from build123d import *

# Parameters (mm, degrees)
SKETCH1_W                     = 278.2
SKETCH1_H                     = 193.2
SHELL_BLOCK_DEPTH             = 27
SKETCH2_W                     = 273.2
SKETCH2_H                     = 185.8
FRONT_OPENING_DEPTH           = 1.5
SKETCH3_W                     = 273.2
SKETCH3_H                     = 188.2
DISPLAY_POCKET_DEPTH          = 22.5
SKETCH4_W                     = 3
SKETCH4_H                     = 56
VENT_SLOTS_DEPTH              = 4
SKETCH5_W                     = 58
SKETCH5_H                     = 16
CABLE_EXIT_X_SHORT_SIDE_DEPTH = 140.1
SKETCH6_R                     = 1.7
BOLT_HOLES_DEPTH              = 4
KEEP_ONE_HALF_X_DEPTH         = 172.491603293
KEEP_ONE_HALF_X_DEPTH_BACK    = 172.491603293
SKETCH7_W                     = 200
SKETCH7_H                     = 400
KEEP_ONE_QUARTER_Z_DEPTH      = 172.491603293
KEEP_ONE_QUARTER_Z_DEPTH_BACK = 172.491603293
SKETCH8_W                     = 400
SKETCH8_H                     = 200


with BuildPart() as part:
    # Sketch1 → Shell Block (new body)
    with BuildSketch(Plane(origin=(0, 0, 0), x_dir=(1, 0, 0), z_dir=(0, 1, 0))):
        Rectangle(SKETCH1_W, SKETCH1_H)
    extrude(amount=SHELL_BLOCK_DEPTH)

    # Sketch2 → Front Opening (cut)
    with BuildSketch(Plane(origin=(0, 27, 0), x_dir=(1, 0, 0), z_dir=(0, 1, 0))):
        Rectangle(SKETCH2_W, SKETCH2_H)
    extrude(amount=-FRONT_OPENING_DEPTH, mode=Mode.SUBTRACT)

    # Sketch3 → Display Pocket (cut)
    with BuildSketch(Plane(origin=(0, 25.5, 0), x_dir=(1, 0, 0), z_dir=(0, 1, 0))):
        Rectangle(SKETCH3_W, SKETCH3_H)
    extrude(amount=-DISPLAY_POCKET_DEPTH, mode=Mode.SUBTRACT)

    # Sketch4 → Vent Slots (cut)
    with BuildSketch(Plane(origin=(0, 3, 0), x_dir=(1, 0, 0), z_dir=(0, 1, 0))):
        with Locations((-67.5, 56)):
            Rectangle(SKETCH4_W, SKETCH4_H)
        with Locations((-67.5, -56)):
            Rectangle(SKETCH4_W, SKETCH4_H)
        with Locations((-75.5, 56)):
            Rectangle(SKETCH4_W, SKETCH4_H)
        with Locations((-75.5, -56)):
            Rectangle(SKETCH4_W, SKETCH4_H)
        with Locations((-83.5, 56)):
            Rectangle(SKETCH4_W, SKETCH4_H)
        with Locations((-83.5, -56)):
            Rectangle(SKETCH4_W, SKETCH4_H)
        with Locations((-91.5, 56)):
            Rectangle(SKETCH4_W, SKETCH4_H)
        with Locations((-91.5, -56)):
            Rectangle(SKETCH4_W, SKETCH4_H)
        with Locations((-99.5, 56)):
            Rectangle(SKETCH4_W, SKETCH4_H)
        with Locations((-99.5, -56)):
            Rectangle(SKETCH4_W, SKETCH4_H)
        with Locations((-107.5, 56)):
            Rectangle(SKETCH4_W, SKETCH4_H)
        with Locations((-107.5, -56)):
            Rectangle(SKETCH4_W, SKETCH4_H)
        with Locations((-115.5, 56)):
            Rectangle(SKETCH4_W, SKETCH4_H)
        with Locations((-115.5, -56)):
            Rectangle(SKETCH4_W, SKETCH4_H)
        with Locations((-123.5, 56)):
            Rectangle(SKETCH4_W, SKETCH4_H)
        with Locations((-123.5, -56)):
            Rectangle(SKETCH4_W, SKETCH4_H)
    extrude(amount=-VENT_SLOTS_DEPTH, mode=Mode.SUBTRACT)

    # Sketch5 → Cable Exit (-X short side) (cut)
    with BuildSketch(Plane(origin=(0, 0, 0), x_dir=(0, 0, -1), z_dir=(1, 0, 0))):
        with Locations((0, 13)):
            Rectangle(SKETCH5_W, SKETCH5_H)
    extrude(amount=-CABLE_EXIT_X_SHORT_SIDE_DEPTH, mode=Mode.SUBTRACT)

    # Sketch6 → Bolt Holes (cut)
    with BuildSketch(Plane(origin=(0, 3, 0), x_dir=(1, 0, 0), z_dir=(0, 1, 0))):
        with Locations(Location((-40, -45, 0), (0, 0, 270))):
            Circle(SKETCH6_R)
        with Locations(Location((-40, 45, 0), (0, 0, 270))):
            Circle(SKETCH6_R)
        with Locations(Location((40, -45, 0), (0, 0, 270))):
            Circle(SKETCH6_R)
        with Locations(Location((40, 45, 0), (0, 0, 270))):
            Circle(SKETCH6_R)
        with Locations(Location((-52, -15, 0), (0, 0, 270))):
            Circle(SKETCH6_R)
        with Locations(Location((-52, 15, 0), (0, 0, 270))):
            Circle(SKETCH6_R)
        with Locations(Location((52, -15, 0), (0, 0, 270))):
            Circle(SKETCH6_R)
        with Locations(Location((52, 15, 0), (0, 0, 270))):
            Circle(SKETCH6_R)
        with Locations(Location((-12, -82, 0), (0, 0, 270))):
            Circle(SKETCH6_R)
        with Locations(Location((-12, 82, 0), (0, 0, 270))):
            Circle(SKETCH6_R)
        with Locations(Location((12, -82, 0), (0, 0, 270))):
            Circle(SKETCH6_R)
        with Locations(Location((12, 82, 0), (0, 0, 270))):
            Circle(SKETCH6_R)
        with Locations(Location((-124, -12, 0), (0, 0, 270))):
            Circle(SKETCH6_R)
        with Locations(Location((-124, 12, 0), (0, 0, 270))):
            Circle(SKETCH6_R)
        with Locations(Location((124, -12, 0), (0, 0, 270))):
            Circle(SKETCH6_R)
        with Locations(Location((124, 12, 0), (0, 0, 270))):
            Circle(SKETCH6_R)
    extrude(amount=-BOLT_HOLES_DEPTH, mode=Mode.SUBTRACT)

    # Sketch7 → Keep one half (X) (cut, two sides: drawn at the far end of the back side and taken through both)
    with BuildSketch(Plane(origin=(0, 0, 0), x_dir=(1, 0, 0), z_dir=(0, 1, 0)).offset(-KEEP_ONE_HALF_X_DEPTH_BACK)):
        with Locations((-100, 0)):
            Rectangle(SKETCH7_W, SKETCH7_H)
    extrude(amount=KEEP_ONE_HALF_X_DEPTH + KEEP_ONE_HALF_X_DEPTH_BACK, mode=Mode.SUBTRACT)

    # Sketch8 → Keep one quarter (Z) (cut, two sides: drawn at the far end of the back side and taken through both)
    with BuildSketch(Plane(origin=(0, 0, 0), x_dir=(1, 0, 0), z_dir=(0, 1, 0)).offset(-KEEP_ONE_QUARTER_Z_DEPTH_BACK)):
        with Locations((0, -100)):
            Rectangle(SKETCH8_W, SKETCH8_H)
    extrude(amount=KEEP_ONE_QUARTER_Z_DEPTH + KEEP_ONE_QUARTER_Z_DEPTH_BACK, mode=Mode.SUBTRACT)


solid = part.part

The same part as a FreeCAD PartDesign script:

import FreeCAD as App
import Part
import Sketcher

V = App.Vector
Q = App.Units.Quantity

doc = App.newDocument("Part")
body = doc.addObject("PartDesign::Body", "Body")

# Sketch on XZ plane
sketch1 = body.newObject("Sketcher::SketchObject", "Sketch")
sketch1.AttachmentSupport = (doc.getObject("XZ_Plane"), [""])
sketch1.MapMode = "FlatFace"
sketch1.addGeometry([
    Part.LineSegment(V(-139, -97, 0), V(-139, 97, 0)),
    Part.LineSegment(V(-139, 97, 0), V(139, 97, 0)),
    Part.LineSegment(V(139, 97, 0), V(139, -97, 0)),
    Part.LineSegment(V(139, -97, 0), V(-139, -97, 0)),
], False)
sketch1.addConstraint([
    Sketcher.Constraint("Coincident", 0, 2, 1, 1),
    Sketcher.Constraint("Coincident", 1, 2, 2, 1),
    Sketcher.Constraint("Coincident", 2, 2, 3, 1),
    Sketcher.Constraint("Coincident", 3, 2, 0, 1),
    Sketcher.Constraint("Vertical", 0),
    Sketcher.Constraint("Horizontal", 1),
    Sketcher.Constraint("Vertical", 2),
    Sketcher.Constraint("Horizontal", 3),
    Sketcher.Constraint("Symmetric", 0, 2, 2, 2, -1, 1),
    Sketcher.Constraint("DistanceX", 1, 1, 1, 2, Q("278.2 mm")),
    Sketcher.Constraint("DistanceY", 0, 1, 0, 2, Q("193.2 mm")),
])
pad1 = body.newObject("PartDesign::Pad", "Pad")
pad1.Profile = sketch1
pad1.Length = 27
pad1.Reversed = True

# Sketch on XZ plane
sketch2 = body.newObject("Sketcher::SketchObject", "Sketch001")
sketch2.AttachmentSupport = (doc.getObject("XZ_Plane"), [""])
sketch2.MapMode = "FlatFace"
sketch2.AttachmentOffset = App.Placement(V(0, 0, -27), App.Rotation())
sketch2.addGeometry([
    Part.LineSegment(V(-137, -93, 0), V(-137, 93, 0)),
    Part.LineSegment(V(-137, 93, 0), V(137, 93, 0)),
    Part.LineSegment(V(137, 93, 0), V(137, -93, 0)),
    Part.LineSegment(V(137, -93, 0), V(-137, -93, 0)),
], False)
sketch2.addConstraint([
    Sketcher.Constraint("Coincident", 0, 2, 1, 1),
    Sketcher.Constraint("Coincident", 1, 2, 2, 1),
    Sketcher.Constraint("Coincident", 2, 2, 3, 1),
    Sketcher.Constraint("Coincident", 3, 2, 0, 1),
    Sketcher.Constraint("Vertical", 0),
    Sketcher.Constraint("Horizontal", 1),
    Sketcher.Constraint("Vertical", 2),
    Sketcher.Constraint("Horizontal", 3),
    Sketcher.Constraint("Symmetric", 0, 2, 2, 2, -1, 1),
    Sketcher.Constraint("DistanceX", 1, 1, 1, 2, Q("273.2 mm")),
    Sketcher.Constraint("DistanceY", 0, 1, 0, 2, Q("185.8 mm")),
])
pocket1 = body.newObject("PartDesign::Pocket", "Pocket")
pocket1.Profile = sketch2
pocket1.Length = 1.5
pocket1.Reversed = True

# Sketch on XZ plane
sketch3 = body.newObject("Sketcher::SketchObject", "Sketch002")
sketch3.AttachmentSupport = (doc.getObject("XZ_Plane"), [""])
sketch3.MapMode = "FlatFace"
sketch3.AttachmentOffset = App.Placement(V(0, 0, -25.5), App.Rotation())
sketch3.addGeometry([
    Part.LineSegment(V(-137, -94, 0), V(-137, 94, 0)),
    Part.LineSegment(V(-137, 94, 0), V(137, 94, 0)),
    Part.LineSegment(V(137, 94, 0), V(137, -94, 0)),
    Part.LineSegment(V(137, -94, 0), V(-137, -94, 0)),
], False)
sketch3.addConstraint([
    Sketcher.Constraint("Coincident", 0, 2, 1, 1),
    Sketcher.Constraint("Coincident", 1, 2, 2, 1),
    Sketcher.Constraint("Coincident", 2, 2, 3, 1),
    Sketcher.Constraint("Coincident", 3, 2, 0, 1),
    Sketcher.Constraint("Vertical", 0),
    Sketcher.Constraint("Horizontal", 1),
    Sketcher.Constraint("Vertical", 2),
    Sketcher.Constraint("Horizontal", 3),
    Sketcher.Constraint("Symmetric", 0, 2, 2, 2, -1, 1),
    Sketcher.Constraint("DistanceX", 1, 1, 1, 2, Q("273.2 mm")),
    Sketcher.Constraint("DistanceY", 0, 1, 0, 2, Q("188.2 mm")),
])
pocket2 = body.newObject("PartDesign::Pocket", "Pocket001")
pocket2.Profile = sketch3
pocket2.Length = 22.5
pocket2.Reversed = True

# Sketch on XZ plane
sketch4 = body.newObject("Sketcher::SketchObject", "Sketch003")
sketch4.AttachmentSupport = (doc.getObject("XZ_Plane"), [""])
sketch4.MapMode = "FlatFace"
sketch4.AttachmentOffset = App.Placement(V(0, 0, -3), App.Rotation())
sketch4.addGeometry([
    Part.LineSegment(V(-69, -84, 0), V(-69, -28, 0)),  # 0
    Part.LineSegment(V(-69, -28, 0), V(-66, -28, 0)),  # 1
    Part.LineSegment(V(-66, -28, 0), V(-66, -84, 0)),  # 2
    Part.LineSegment(V(-66, -84, 0), V(-69, -84, 0)),  # 3
    Part.LineSegment(V(-69, 28, 0), V(-69, 84, 0)),  # 4
    Part.LineSegment(V(-69, 84, 0), V(-66, 84, 0)),  # 5
    Part.LineSegment(V(-66, 84, 0), V(-66, 28, 0)),  # 6
    Part.LineSegment(V(-66, 28, 0), V(-69, 28, 0)),  # 7
    Part.LineSegment(V(-77, -84, 0), V(-77, -28, 0)),  # 8
    Part.LineSegment(V(-77, -28, 0), V(-74, -28, 0)),  # 9
    Part.LineSegment(V(-74, -28, 0), V(-74, -84, 0)),  # 10
    Part.LineSegment(V(-74, -84, 0), V(-77, -84, 0)),  # 11
    Part.LineSegment(V(-77, 28, 0), V(-77, 84, 0)),  # 12
    Part.LineSegment(V(-77, 84, 0), V(-74, 84, 0)),  # 13
    Part.LineSegment(V(-74, 84, 0), V(-74, 28, 0)),  # 14
    Part.LineSegment(V(-74, 28, 0), V(-77, 28, 0)),  # 15
    Part.LineSegment(V(-85, -84, 0), V(-85, -28, 0)),  # 16
    Part.LineSegment(V(-85, -28, 0), V(-82, -28, 0)),  # 17
    Part.LineSegment(V(-82, -28, 0), V(-82, -84, 0)),  # 18
    Part.LineSegment(V(-82, -84, 0), V(-85, -84, 0)),  # 19
    Part.LineSegment(V(-85, 28, 0), V(-85, 84, 0)),  # 20
    Part.LineSegment(V(-85, 84, 0), V(-82, 84, 0)),  # 21
    Part.LineSegment(V(-82, 84, 0), V(-82, 28, 0)),  # 22
    Part.LineSegment(V(-82, 28, 0), V(-85, 28, 0)),  # 23
    Part.LineSegment(V(-93, -84, 0), V(-93, -28, 0)),  # 24
    Part.LineSegment(V(-93, -28, 0), V(-90, -28, 0)),  # 25
    Part.LineSegment(V(-90, -28, 0), V(-90, -84, 0)),  # 26
    Part.LineSegment(V(-90, -84, 0), V(-93, -84, 0)),  # 27
    Part.LineSegment(V(-93, 28, 0), V(-93, 84, 0)),  # 28
    Part.LineSegment(V(-93, 84, 0), V(-90, 84, 0)),  # 29
    Part.LineSegment(V(-90, 84, 0), V(-90, 28, 0)),  # 30
    Part.LineSegment(V(-90, 28, 0), V(-93, 28, 0)),  # 31
    Part.LineSegment(V(-101, -84, 0), V(-101, -28, 0)),  # 32
    Part.LineSegment(V(-101, -28, 0), V(-98, -28, 0)),  # 33
    Part.LineSegment(V(-98, -28, 0), V(-98, -84, 0)),  # 34
    Part.LineSegment(V(-98, -84, 0), V(-101, -84, 0)),  # 35
    Part.LineSegment(V(-101, 28, 0), V(-101, 84, 0)),  # 36
    Part.LineSegment(V(-101, 84, 0), V(-98, 84, 0)),  # 37
    Part.LineSegment(V(-98, 84, 0), V(-98, 28, 0)),  # 38
    Part.LineSegment(V(-98, 28, 0), V(-101, 28, 0)),  # 39
    Part.LineSegment(V(-109, -84, 0), V(-109, -28, 0)),  # 40
    Part.LineSegment(V(-109, -28, 0), V(-106, -28, 0)),  # 41
    Part.LineSegment(V(-106, -28, 0), V(-106, -84, 0)),  # 42
    Part.LineSegment(V(-106, -84, 0), V(-109, -84, 0)),  # 43
    Part.LineSegment(V(-109, 28, 0), V(-109, 84, 0)),  # 44
    Part.LineSegment(V(-109, 84, 0), V(-106, 84, 0)),  # 45
    Part.LineSegment(V(-106, 84, 0), V(-106, 28, 0)),  # 46
    Part.LineSegment(V(-106, 28, 0), V(-109, 28, 0)),  # 47
    Part.LineSegment(V(-117, -84, 0), V(-117, -28, 0)),  # 48
    Part.LineSegment(V(-117, -28, 0), V(-114, -28, 0)),  # 49
    Part.LineSegment(V(-114, -28, 0), V(-114, -84, 0)),  # 50
    Part.LineSegment(V(-114, -84, 0), V(-117, -84, 0)),  # 51
    Part.LineSegment(V(-117, 28, 0), V(-117, 84, 0)),  # 52
    Part.LineSegment(V(-117, 84, 0), V(-114, 84, 0)),  # 53
    Part.LineSegment(V(-114, 84, 0), V(-114, 28, 0)),  # 54
    Part.LineSegment(V(-114, 28, 0), V(-117, 28, 0)),  # 55
    Part.LineSegment(V(-125, -84, 0), V(-125, -28, 0)),  # 56
    Part.LineSegment(V(-125, -28, 0), V(-122, -28, 0)),  # 57
    Part.LineSegment(V(-122, -28, 0), V(-122, -84, 0)),  # 58
    Part.LineSegment(V(-122, -84, 0), V(-125, -84, 0)),  # 59
    Part.LineSegment(V(-125, 28, 0), V(-125, 84, 0)),  # 60
    Part.LineSegment(V(-125, 84, 0), V(-122, 84, 0)),  # 61
    Part.LineSegment(V(-122, 84, 0), V(-122, 28, 0)),  # 62
    Part.LineSegment(V(-122, 28, 0), V(-125, 28, 0)),  # 63
], False)
sketch4.addConstraint([
    Sketcher.Constraint("Coincident", 0, 2, 1, 1),
    Sketcher.Constraint("Coincident", 1, 2, 2, 1),
    Sketcher.Constraint("Coincident", 2, 2, 3, 1),
    Sketcher.Constraint("Coincident", 3, 2, 0, 1),
    Sketcher.Constraint("Coincident", 4, 2, 5, 1),
    Sketcher.Constraint("Coincident", 5, 2, 6, 1),
    Sketcher.Constraint("Coincident", 6, 2, 7, 1),
    Sketcher.Constraint("Coincident", 7, 2, 4, 1),
    Sketcher.Constraint("Coincident", 8, 2, 9, 1),
    Sketcher.Constraint("Coincident", 9, 2, 10, 1),
    Sketcher.Constraint("Coincident", 10, 2, 11, 1),
    Sketcher.Constraint("Coincident", 11, 2, 8, 1),
    Sketcher.Constraint("Coincident", 12, 2, 13, 1),
    Sketcher.Constraint("Coincident", 13, 2, 14, 1),
    Sketcher.Constraint("Coincident", 14, 2, 15, 1),
    Sketcher.Constraint("Coincident", 15, 2, 12, 1),
    Sketcher.Constraint("Coincident", 16, 2, 17, 1),
    Sketcher.Constraint("Coincident", 17, 2, 18, 1),
    Sketcher.Constraint("Coincident", 18, 2, 19, 1),
    Sketcher.Constraint("Coincident", 19, 2, 16, 1),
    Sketcher.Constraint("Coincident", 20, 2, 21, 1),
    Sketcher.Constraint("Coincident", 21, 2, 22, 1),
    Sketcher.Constraint("Coincident", 22, 2, 23, 1),
    Sketcher.Constraint("Coincident", 23, 2, 20, 1),
    Sketcher.Constraint("Coincident", 24, 2, 25, 1),
    Sketcher.Constraint("Coincident", 25, 2, 26, 1),
    Sketcher.Constraint("Coincident", 26, 2, 27, 1),
    Sketcher.Constraint("Coincident", 27, 2, 24, 1),
    Sketcher.Constraint("Coincident", 28, 2, 29, 1),
    Sketcher.Constraint("Coincident", 29, 2, 30, 1),
    Sketcher.Constraint("Coincident", 30, 2, 31, 1),
    Sketcher.Constraint("Coincident", 31, 2, 28, 1),
    Sketcher.Constraint("Coincident", 32, 2, 33, 1),
    Sketcher.Constraint("Coincident", 33, 2, 34, 1),
    Sketcher.Constraint("Coincident", 34, 2, 35, 1),
    Sketcher.Constraint("Coincident", 35, 2, 32, 1),
    Sketcher.Constraint("Coincident", 36, 2, 37, 1),
    Sketcher.Constraint("Coincident", 37, 2, 38, 1),
    Sketcher.Constraint("Coincident", 38, 2, 39, 1),
    Sketcher.Constraint("Coincident", 39, 2, 36, 1),
    Sketcher.Constraint("Coincident", 40, 2, 41, 1),
    Sketcher.Constraint("Coincident", 41, 2, 42, 1),
    Sketcher.Constraint("Coincident", 42, 2, 43, 1),
    Sketcher.Constraint("Coincident", 43, 2, 40, 1),
    Sketcher.Constraint("Coincident", 44, 2, 45, 1),
    Sketcher.Constraint("Coincident", 45, 2, 46, 1),
    Sketcher.Constraint("Coincident", 46, 2, 47, 1),
    Sketcher.Constraint("Coincident", 47, 2, 44, 1),
    Sketcher.Constraint("Coincident", 48, 2, 49, 1),
    Sketcher.Constraint("Coincident", 49, 2, 50, 1),
    Sketcher.Constraint("Coincident", 50, 2, 51, 1),
    Sketcher.Constraint("Coincident", 51, 2, 48, 1),
    Sketcher.Constraint("Coincident", 52, 2, 53, 1),
    Sketcher.Constraint("Coincident", 53, 2, 54, 1),
    Sketcher.Constraint("Coincident", 54, 2, 55, 1),
    Sketcher.Constraint("Coincident", 55, 2, 52, 1),
    Sketcher.Constraint("Coincident", 56, 2, 57, 1),
    Sketcher.Constraint("Coincident", 57, 2, 58, 1),
    Sketcher.Constraint("Coincident", 58, 2, 59, 1),
    Sketcher.Constraint("Coincident", 59, 2, 56, 1),
    Sketcher.Constraint("Coincident", 60, 2, 61, 1),
    Sketcher.Constraint("Coincident", 61, 2, 62, 1),
    Sketcher.Constraint("Coincident", 62, 2, 63, 1),
    Sketcher.Constraint("Coincident", 63, 2, 60, 1),
    Sketcher.Constraint("Vertical", 0),
    Sketcher.Constraint("Horizontal", 1),
    Sketcher.Constraint("Vertical", 2),
    Sketcher.Constraint("Horizontal", 3),
    Sketcher.Constraint("Vertical", 4),
    Sketcher.Constraint("Horizontal", 5),
    Sketcher.Constraint("Vertical", 6),
    Sketcher.Constraint("Horizontal", 7),
    Sketcher.Constraint("Vertical", 8),
    Sketcher.Constraint("Horizontal", 9),
    Sketcher.Constraint("Vertical", 10),
    Sketcher.Constraint("Horizontal", 11),
    Sketcher.Constraint("Vertical", 12),
    Sketcher.Constraint("Horizontal", 13),
    Sketcher.Constraint("Vertical", 14),
    Sketcher.Constraint("Horizontal", 15),
    Sketcher.Constraint("Vertical", 16),
    Sketcher.Constraint("Horizontal", 17),
    Sketcher.Constraint("Vertical", 18),
    Sketcher.Constraint("Horizontal", 19),
    Sketcher.Constraint("Vertical", 20),
    Sketcher.Constraint("Horizontal", 21),
    Sketcher.Constraint("Vertical", 22),
    Sketcher.Constraint("Horizontal", 23),
    Sketcher.Constraint("Vertical", 24),
    Sketcher.Constraint("Horizontal", 25),
    Sketcher.Constraint("Vertical", 26),
    Sketcher.Constraint("Horizontal", 27),
    Sketcher.Constraint("Vertical", 28),
    Sketcher.Constraint("Horizontal", 29),
    Sketcher.Constraint("Vertical", 30),
    Sketcher.Constraint("Horizontal", 31),
    Sketcher.Constraint("Vertical", 32),
    Sketcher.Constraint("Horizontal", 33),
    Sketcher.Constraint("Vertical", 34),
    Sketcher.Constraint("Horizontal", 35),
    Sketcher.Constraint("Vertical", 36),
    Sketcher.Constraint("Horizontal", 37),
    Sketcher.Constraint("Vertical", 38),
    Sketcher.Constraint("Horizontal", 39),
    Sketcher.Constraint("Vertical", 40),
    Sketcher.Constraint("Horizontal", 41),
    Sketcher.Constraint("Vertical", 42),
    Sketcher.Constraint("Horizontal", 43),
    Sketcher.Constraint("Vertical", 44),
    Sketcher.Constraint("Horizontal", 45),
    Sketcher.Constraint("Vertical", 46),
    Sketcher.Constraint("Horizontal", 47),
    Sketcher.Constraint("Vertical", 48),
    Sketcher.Constraint("Horizontal", 49),
    Sketcher.Constraint("Vertical", 50),
    Sketcher.Constraint("Horizontal", 51),
    Sketcher.Constraint("Vertical", 52),
    Sketcher.Constraint("Horizontal", 53),
    Sketcher.Constraint("Vertical", 54),
    Sketcher.Constraint("Horizontal", 55),
    Sketcher.Constraint("Vertical", 56),
    Sketcher.Constraint("Horizontal", 57),
    Sketcher.Constraint("Vertical", 58),
    Sketcher.Constraint("Horizontal", 59),
    Sketcher.Constraint("Vertical", 60),
    Sketcher.Constraint("Horizontal", 61),
    Sketcher.Constraint("Vertical", 62),
    Sketcher.Constraint("Horizontal", 63),
    Sketcher.Constraint("Symmetric", 3, 2, 4, 2, -1),
    Sketcher.Constraint("Symmetric", 1, 2, 6, 2, -1),
    Sketcher.Constraint("Symmetric", 11, 2, 12, 2, -1),
    Sketcher.Constraint("Symmetric", 9, 2, 14, 2, -1),
    Sketcher.Constraint("Symmetric", 19, 2, 20, 2, -1),
    Sketcher.Constraint("Symmetric", 17, 2, 22, 2, -1),
    Sketcher.Constraint("Symmetric", 27, 2, 28, 2, -1),
    Sketcher.Constraint("Symmetric", 25, 2, 30, 2, -1),
    Sketcher.Constraint("Symmetric", 35, 2, 36, 2, -1),
    Sketcher.Constraint("Symmetric", 33, 2, 38, 2, -1),
    Sketcher.Constraint("Symmetric", 43, 2, 44, 2, -1),
    Sketcher.Constraint("Symmetric", 41, 2, 46, 2, -1),
    Sketcher.Constraint("Symmetric", 51, 2, 52, 2, -1),
    Sketcher.Constraint("Symmetric", 49, 2, 54, 2, -1),
    Sketcher.Constraint("Symmetric", 59, 2, 60, 2, -1),
    Sketcher.Constraint("Symmetric", 57, 2, 62, 2, -1),
    Sketcher.Constraint("Horizontal", 1, 2, 8, 2),
    Sketcher.Constraint("Horizontal", 3, 2, 10, 2),
    Sketcher.Constraint("Horizontal", 9, 2, 16, 2),
    Sketcher.Constraint("Horizontal", 11, 2, 18, 2),
    Sketcher.Constraint("Horizontal", 17, 2, 24, 2),
    Sketcher.Constraint("Horizontal", 19, 2, 26, 2),
    Sketcher.Constraint("Horizontal", 25, 2, 32, 2),
    Sketcher.Constraint("Horizontal", 27, 2, 34, 2),
    Sketcher.Constraint("Horizontal", 33, 2, 40, 2),
    Sketcher.Constraint("Horizontal", 35, 2, 42, 2),
    Sketcher.Constraint("Horizontal", 41, 2, 48, 2),
    Sketcher.Constraint("Horizontal", 43, 2, 50, 2),
    Sketcher.Constraint("Horizontal", 49, 2, 56, 2),
    Sketcher.Constraint("Horizontal", 51, 2, 58, 2),
    Sketcher.Constraint("Equal", 7, 9),
    Sketcher.Constraint("Equal", 15, 17),
    Sketcher.Constraint("Equal", 23, 25),
    Sketcher.Constraint("Equal", 31, 33),
    Sketcher.Constraint("Equal", 39, 41),
    Sketcher.Constraint("Equal", 47, 49),
    Sketcher.Constraint("Equal", 55, 57),
    Sketcher.Constraint("DistanceX", 1, 1, 1, 2, Q("3 mm")),
    Sketcher.Constraint("DistanceY", 0, 1, 0, 2, Q("56 mm")),
    Sketcher.Constraint("DistanceX", 0, 2, -1, 1, Q("69 mm")),
    Sketcher.Constraint("DistanceY", 0, 2, -1, 1, Q("28 mm")),
    Sketcher.Constraint("DistanceX", 8, 2, -1, 1, Q("77 mm")),
    Sketcher.Constraint("DistanceX", 16, 2, -1, 1, Q("85 mm")),
    Sketcher.Constraint("DistanceX", 24, 2, -1, 1, Q("93 mm")),
    Sketcher.Constraint("DistanceX", 32, 2, -1, 1, Q("101 mm")),
    Sketcher.Constraint("DistanceX", 40, 2, -1, 1, Q("109 mm")),
    Sketcher.Constraint("DistanceX", 48, 2, -1, 1, Q("117 mm")),
    Sketcher.Constraint("DistanceX", 56, 2, -1, 1, Q("125 mm")),
])
pocket3 = body.newObject("PartDesign::Pocket", "Pocket002")
pocket3.Profile = sketch4
pocket3.Length = 4
pocket3.Reversed = True

# Sketch on YZ plane
sketch5 = body.newObject("Sketcher::SketchObject", "Sketch004")
sketch5.AttachmentSupport = (doc.getObject("YZ_Plane"), [""])
sketch5.MapMode = "FlatFace"
sketch5.addGeometry([
    Part.LineSegment(V(21, 29, 0), V(5, 29, 0)),
    Part.LineSegment(V(5, 29, 0), V(5, -29, 0)),
    Part.LineSegment(V(5, -29, 0), V(21, -29, 0)),
    Part.LineSegment(V(21, -29, 0), V(21, 29, 0)),
], False)
sketch5.addConstraint([
    Sketcher.Constraint("Coincident", 0, 2, 1, 1),
    Sketcher.Constraint("Coincident", 1, 2, 2, 1),
    Sketcher.Constraint("Coincident", 2, 2, 3, 1),
    Sketcher.Constraint("Coincident", 3, 2, 0, 1),
    Sketcher.Constraint("Horizontal", 0),
    Sketcher.Constraint("Vertical", 1),
    Sketcher.Constraint("Horizontal", 2),
    Sketcher.Constraint("Vertical", 3),
    Sketcher.Constraint("DistanceX", 0, 2, 0, 1, Q("16 mm")),
    Sketcher.Constraint("DistanceY", 1, 2, 1, 1, Q("58 mm")),
    Sketcher.Constraint("DistanceX", -1, 1, 0, 2, Q("5 mm")),
    Sketcher.Constraint("DistanceY", -1, 1, 0, 2, Q("29 mm")),
])
pocket4 = body.newObject("PartDesign::Pocket", "Pocket003")
pocket4.Profile = sketch5
pocket4.Length = 140.1

# Sketch on XZ plane
sketch6 = body.newObject("Sketcher::SketchObject", "Sketch005")
sketch6.AttachmentSupport = (doc.getObject("XZ_Plane"), [""])
sketch6.MapMode = "FlatFace"
sketch6.AttachmentOffset = App.Placement(V(0, 0, -3), App.Rotation())
sketch6.addGeometry([
    Part.Circle(V(-40, 45, 0), V(0, 0, 1), 1.7),  # 0
    Part.Circle(V(-40, -45, 0), V(0, 0, 1), 1.7),  # 1
    Part.Circle(V(40, 45, 0), V(0, 0, 1), 1.7),  # 2
    Part.Circle(V(40, -45, 0), V(0, 0, 1), 1.7),  # 3
    Part.Circle(V(-52, 15, 0), V(0, 0, 1), 1.7),  # 4
    Part.Circle(V(-52, -15, 0), V(0, 0, 1), 1.7),  # 5
    Part.Circle(V(52, 15, 0), V(0, 0, 1), 1.7),  # 6
    Part.Circle(V(52, -15, 0), V(0, 0, 1), 1.7),  # 7
    Part.Circle(V(-12, 82, 0), V(0, 0, 1), 1.7),  # 8
    Part.Circle(V(-12, -82, 0), V(0, 0, 1), 1.7),  # 9
    Part.Circle(V(12, 82, 0), V(0, 0, 1), 1.7),  # 10
    Part.Circle(V(12, -82, 0), V(0, 0, 1), 1.7),  # 11
    Part.Circle(V(-124, 12, 0), V(0, 0, 1), 1.7),  # 12
    Part.Circle(V(-124, -12, 0), V(0, 0, 1), 1.7),  # 13
    Part.Circle(V(124, 12, 0), V(0, 0, 1), 1.7),  # 14
    Part.Circle(V(124, -12, 0), V(0, 0, 1), 1.7),  # 15
], False)
sketch6.addConstraint([
    Sketcher.Constraint("Equal", 0, 1),
    Sketcher.Constraint("Equal", 1, 2),
    Sketcher.Constraint("Equal", 2, 3),
    Sketcher.Constraint("Equal", 3, 4),
    Sketcher.Constraint("Equal", 4, 5),
    Sketcher.Constraint("Equal", 5, 6),
    Sketcher.Constraint("Equal", 6, 7),
    Sketcher.Constraint("Equal", 7, 8),
    Sketcher.Constraint("Equal", 8, 9),
    Sketcher.Constraint("Equal", 9, 10),
    Sketcher.Constraint("Equal", 10, 11),
    Sketcher.Constraint("Equal", 11, 12),
    Sketcher.Constraint("Equal", 12, 13),
    Sketcher.Constraint("Equal", 13, 14),
    Sketcher.Constraint("Equal", 14, 15),
    Sketcher.Constraint("Symmetric", 1, 3, 2, 3, -1, 1),
    Sketcher.Constraint("Symmetric", 0, 3, 3, 3, -1, 1),
    Sketcher.Constraint("Symmetric", 5, 3, 6, 3, -1, 1),
    Sketcher.Constraint("Symmetric", 4, 3, 7, 3, -1, 1),
    Sketcher.Constraint("Symmetric", 9, 3, 10, 3, -1, 1),
    Sketcher.Constraint("Symmetric", 8, 3, 11, 3, -1, 1),
    Sketcher.Constraint("Symmetric", 13, 3, 14, 3, -1, 1),
    Sketcher.Constraint("Symmetric", 12, 3, 15, 3, -1, 1),
    Sketcher.Constraint("Symmetric", 0, 3, 2, 3, -2),
    Sketcher.Constraint("Symmetric", 4, 3, 6, 3, -2),
    Sketcher.Constraint("Symmetric", 8, 3, 10, 3, -2),
    Sketcher.Constraint("Symmetric", 12, 3, 14, 3, -2),
    Sketcher.Constraint("Diameter", 0, Q("3.4 mm")),
    Sketcher.Constraint("DistanceX", 0, 3, -1, 1, Q("40 mm")),
    Sketcher.Constraint("DistanceY", -1, 1, 0, 3, Q("45 mm")),
    Sketcher.Constraint("DistanceX", 4, 3, -1, 1, Q("52 mm")),
    Sketcher.Constraint("DistanceY", -1, 1, 4, 3, Q("15 mm")),
    Sketcher.Constraint("DistanceX", 8, 3, -1, 1, Q("12 mm")),
    Sketcher.Constraint("DistanceY", -1, 1, 8, 3, Q("82 mm")),
    Sketcher.Constraint("DistanceX", 12, 3, -1, 1, Q("124 mm")),
    Sketcher.Constraint("DistanceY", -1, 1, 12, 3, Q("12 mm")),
])
pocket5 = body.newObject("PartDesign::Pocket", "Pocket004")
pocket5.Profile = sketch6
pocket5.Length = 4
pocket5.Reversed = True

# Sketch on XZ plane
sketch7 = body.newObject("Sketcher::SketchObject", "Sketch006")
sketch7.AttachmentSupport = (doc.getObject("XZ_Plane"), [""])
sketch7.MapMode = "FlatFace"
sketch7.addGeometry([
    Part.LineSegment(V(-200, -200, 0), V(-200, 200, 0)),
    Part.LineSegment(V(-200, 200, 0), V(0, 200, 0)),
    Part.LineSegment(V(0, 200, 0), V(0, -200, 0)),
    Part.LineSegment(V(0, -200, 0), V(-200, -200, 0)),
], False)
sketch7.addConstraint([
    Sketcher.Constraint("Coincident", 0, 2, 1, 1),
    Sketcher.Constraint("Coincident", 1, 2, 2, 1),
    Sketcher.Constraint("Coincident", 2, 2, 3, 1),
    Sketcher.Constraint("Coincident", 3, 2, 0, 1),
    Sketcher.Constraint("Vertical", 0),
    Sketcher.Constraint("Horizontal", 1),
    Sketcher.Constraint("Vertical", 2),
    Sketcher.Constraint("Horizontal", 3),
    Sketcher.Constraint("Symmetric", 1, 2, 2, 2, -1, 1),
    Sketcher.Constraint("DistanceX", 1, 1, 1, 2, Q("200 mm")),
    Sketcher.Constraint("DistanceY", 0, 1, 0, 2, Q("400 mm")),
])
pocket6 = body.newObject("PartDesign::Pocket", "Pocket005")
pocket6.Profile = sketch7
pocket6.Type = "ThroughAll"
pocket6.Midplane = True

# Sketch on XZ plane
sketch8 = body.newObject("Sketcher::SketchObject", "Sketch007")
sketch8.AttachmentSupport = (doc.getObject("XZ_Plane"), [""])
sketch8.MapMode = "FlatFace"
sketch8.addGeometry([
    Part.LineSegment(V(-200, 0, 0), V(-200, 200, 0)),
    Part.LineSegment(V(-200, 200, 0), V(200, 200, 0)),
    Part.LineSegment(V(200, 200, 0), V(200, 0, 0)),
    Part.LineSegment(V(200, 0, 0), V(-200, 0, 0)),
], False)
sketch8.addConstraint([
    Sketcher.Constraint("Coincident", 0, 2, 1, 1),
    Sketcher.Constraint("Coincident", 1, 2, 2, 1),
    Sketcher.Constraint("Coincident", 2, 2, 3, 1),
    Sketcher.Constraint("Coincident", 3, 2, 0, 1),
    Sketcher.Constraint("Vertical", 0),
    Sketcher.Constraint("Horizontal", 1),
    Sketcher.Constraint("Vertical", 2),
    Sketcher.Constraint("Horizontal", 3),
    Sketcher.Constraint("Symmetric", 2, 2, 3, 2, -1, 1),
    Sketcher.Constraint("DistanceX", 1, 1, 1, 2, Q("400 mm")),
    Sketcher.Constraint("DistanceY", 0, 1, 0, 2, Q("200 mm")),
])
pocket7 = body.newObject("PartDesign::Pocket", "Pocket006")
pocket7.Profile = sketch8
pocket7.Type = "ThroughAll"
pocket7.Midplane = True

doc.recompute()
